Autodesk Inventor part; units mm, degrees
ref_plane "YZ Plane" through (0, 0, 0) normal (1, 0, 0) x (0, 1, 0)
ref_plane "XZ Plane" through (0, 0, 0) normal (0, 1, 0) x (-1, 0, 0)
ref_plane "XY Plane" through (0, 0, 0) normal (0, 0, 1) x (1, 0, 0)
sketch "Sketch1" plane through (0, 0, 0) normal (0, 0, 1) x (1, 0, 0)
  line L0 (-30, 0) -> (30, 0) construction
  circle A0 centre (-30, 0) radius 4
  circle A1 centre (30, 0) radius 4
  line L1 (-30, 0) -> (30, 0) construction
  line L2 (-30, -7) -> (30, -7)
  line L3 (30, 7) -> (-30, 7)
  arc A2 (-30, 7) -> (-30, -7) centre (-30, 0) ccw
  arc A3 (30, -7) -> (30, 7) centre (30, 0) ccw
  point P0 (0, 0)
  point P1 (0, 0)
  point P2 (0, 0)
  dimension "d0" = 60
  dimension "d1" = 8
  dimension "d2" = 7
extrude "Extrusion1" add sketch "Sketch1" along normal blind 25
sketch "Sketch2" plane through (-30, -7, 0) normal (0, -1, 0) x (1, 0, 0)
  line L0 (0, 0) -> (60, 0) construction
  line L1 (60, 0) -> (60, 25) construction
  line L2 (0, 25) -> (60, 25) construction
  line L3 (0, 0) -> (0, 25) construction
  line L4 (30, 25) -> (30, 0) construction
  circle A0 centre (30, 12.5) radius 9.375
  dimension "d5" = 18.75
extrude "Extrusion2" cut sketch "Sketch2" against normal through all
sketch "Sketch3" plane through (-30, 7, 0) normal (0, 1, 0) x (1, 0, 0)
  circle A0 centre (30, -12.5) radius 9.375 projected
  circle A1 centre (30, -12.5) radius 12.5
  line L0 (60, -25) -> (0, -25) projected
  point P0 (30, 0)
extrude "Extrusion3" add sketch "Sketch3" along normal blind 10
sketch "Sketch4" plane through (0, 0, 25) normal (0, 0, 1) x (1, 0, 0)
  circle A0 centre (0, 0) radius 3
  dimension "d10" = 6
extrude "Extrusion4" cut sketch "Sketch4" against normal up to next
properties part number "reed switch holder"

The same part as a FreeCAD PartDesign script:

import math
import FreeCAD as App
import Part
import Sketcher
from FreeCAD import Vector

doc = App.newDocument("Part")
body = doc.addObject("PartDesign::Body", "Body")

# Sketch on XY plane
sketch1 = doc.addObject("Sketcher::SketchObject", "Sketch")
body.addObject(sketch1)
sketch1.AttachmentSupport = (doc.XY_Plane, [""])
sketch1.MapMode = "FlatFace"
sketch1.addGeometry(Part.ArcOfCircle(Part.Circle(Vector(-30, 0, 0), Vector(0, 0, 1), 7), math.radians(90), math.radians(270)), False)
sketch1.addGeometry(Part.LineSegment(Vector(-30, -7, 0), Vector(30, -7, 0)), False)
sketch1.addGeometry(Part.ArcOfCircle(Part.Circle(Vector(30, 0, 0), Vector(0, 0, 1), 7), math.radians(-90), math.radians(90)), False)
sketch1.addGeometry(Part.LineSegment(Vector(30, 7, 0), Vector(-30, 7, 0)), False)
sketch1.addGeometry(Part.Circle(Vector(-30, 0, 0), Vector(0, 0, 1), 4), False)
sketch1.addGeometry(Part.Circle(Vector(30, 0, 0), Vector(0, 0, 1), 4), False)
sketch1.addConstraint(Sketcher.Constraint("Tangent", 0, 2, 1, 1))
sketch1.addConstraint(Sketcher.Constraint("Tangent", 1, 2, 2, 1))
sketch1.addConstraint(Sketcher.Constraint("Tangent", 2, 2, 3, 1))
sketch1.addConstraint(Sketcher.Constraint("Tangent", 3, 2, 0, 1))
sketch1.addConstraint(Sketcher.Constraint("Horizontal", 1))
sketch1.addConstraint(Sketcher.Constraint("Horizontal", 3))
sketch1.addConstraint(Sketcher.Constraint("Coincident", 4, 3, 0, 3))
sketch1.addConstraint(Sketcher.Constraint("Coincident", 5, 3, 2, 3))
sketch1.addConstraint(Sketcher.Constraint("Equal", 4, 5))
sketch1.addConstraint(Sketcher.Constraint("Symmetric", 0, 3, 2, 3, -1, 1))
sketch1.addConstraint(Sketcher.Constraint("Diameter", 4, 8.0))
sketch1.addConstraint(Sketcher.Constraint("Radius", 0, 7.0))
sketch1.addConstraint(Sketcher.Constraint("DistanceX", 1, 1, 1, 2, 60.0))
pad1 = doc.addObject("PartDesign::Pad", "Pad")
body.addObject(pad1)
pad1.Profile = sketch1
pad1.Length = 25

# Sketch on XZ plane
sketch2 = doc.addObject("Sketcher::SketchObject", "Sketch001")
body.addObject(sketch2)
sketch2.AttachmentSupport = (doc.XZ_Plane, [""])
sketch2.MapMode = "FlatFace"
sketch2.AttachmentOffset = App.Placement(Vector(0, 0, 7), App.Rotation())
sketch2.addGeometry(Part.Circle(Vector(0, 12, 0), Vector(0, 0, 1), 9), False)
sketch2.addConstraint(Sketcher.Constraint("PointOnObject", 0, 3, -2))
sketch2.addConstraint(Sketcher.Constraint("Diameter", 0, 18.75))
sketch2.addConstraint(Sketcher.Constraint("DistanceY", -1, 1, 0, 3, 12.5))
pocket1 = doc.addObject("PartDesign::Pocket", "Pocket")
body.addObject(pocket1)
pocket1.Profile = sketch2
pocket1.Type = "ThroughAll"

# Sketch on XZ plane
sketch3 = doc.addObject("Sketcher::SketchObject", "Sketch002")
body.addObject(sketch3)
sketch3.AttachmentSupport = (doc.XZ_Plane, [""])
sketch3.MapMode = "FlatFace"
sketch3.AttachmentOffset = App.Placement(Vector(0, 0, -7), App.Rotation())
sketch3.addGeometry(Part.Circle(Vector(0, 12, 0), Vector(0, 0, 1), 12), False)
sketch3.addGeometry(Part.Circle(Vector(0, 12, 0), Vector(0, 0, 1), 9), False)
sketch3.addConstraint(Sketcher.Constraint("Coincident", 1, 3, 0, 3))
sketch3.addConstraint(Sketcher.Constraint("PointOnObject", 0, 3, -2))
sketch3.addConstraint(Sketcher.Constraint("Diameter", 0, 25.0))
sketch3.addConstraint(Sketcher.Constraint("Diameter", 1, 18.75))
sketch3.addConstraint(Sketcher.Constraint("DistanceY", -1, 1, 0, 3, 12.5))
pad2 = doc.addObject("PartDesign::Pad", "Pad001")
body.addObject(pad2)
pad2.Profile = sketch3
pad2.Length = 10
pad2.Reversed = True

# Sketch on XY plane
sketch4 = doc.addObject("Sketcher::SketchObject", "Sketch003")
body.addObject(sketch4)
sketch4.AttachmentSupport = (doc.XY_Plane, [""])
sketch4.MapMode = "FlatFace"
sketch4.AttachmentOffset = App.Placement(Vector(0, 0, 25), App.Rotation())
sketch4.addGeometry(Part.Circle(Vector(0, 0, 0), Vector(0, 0, 1), 3), False)
sketch4.addConstraint(Sketcher.Constraint("Coincident", 0, 3, -1, 1))
sketch4.addConstraint(Sketcher.Constraint("Diameter", 0, 6.0))
pocket2 = doc.addObject("PartDesign::Pocket", "Pocket001")
body.addObject(pocket2)
pocket2.Profile = sketch4
pocket2.Type = "UpToFirst"

doc.recompute()
